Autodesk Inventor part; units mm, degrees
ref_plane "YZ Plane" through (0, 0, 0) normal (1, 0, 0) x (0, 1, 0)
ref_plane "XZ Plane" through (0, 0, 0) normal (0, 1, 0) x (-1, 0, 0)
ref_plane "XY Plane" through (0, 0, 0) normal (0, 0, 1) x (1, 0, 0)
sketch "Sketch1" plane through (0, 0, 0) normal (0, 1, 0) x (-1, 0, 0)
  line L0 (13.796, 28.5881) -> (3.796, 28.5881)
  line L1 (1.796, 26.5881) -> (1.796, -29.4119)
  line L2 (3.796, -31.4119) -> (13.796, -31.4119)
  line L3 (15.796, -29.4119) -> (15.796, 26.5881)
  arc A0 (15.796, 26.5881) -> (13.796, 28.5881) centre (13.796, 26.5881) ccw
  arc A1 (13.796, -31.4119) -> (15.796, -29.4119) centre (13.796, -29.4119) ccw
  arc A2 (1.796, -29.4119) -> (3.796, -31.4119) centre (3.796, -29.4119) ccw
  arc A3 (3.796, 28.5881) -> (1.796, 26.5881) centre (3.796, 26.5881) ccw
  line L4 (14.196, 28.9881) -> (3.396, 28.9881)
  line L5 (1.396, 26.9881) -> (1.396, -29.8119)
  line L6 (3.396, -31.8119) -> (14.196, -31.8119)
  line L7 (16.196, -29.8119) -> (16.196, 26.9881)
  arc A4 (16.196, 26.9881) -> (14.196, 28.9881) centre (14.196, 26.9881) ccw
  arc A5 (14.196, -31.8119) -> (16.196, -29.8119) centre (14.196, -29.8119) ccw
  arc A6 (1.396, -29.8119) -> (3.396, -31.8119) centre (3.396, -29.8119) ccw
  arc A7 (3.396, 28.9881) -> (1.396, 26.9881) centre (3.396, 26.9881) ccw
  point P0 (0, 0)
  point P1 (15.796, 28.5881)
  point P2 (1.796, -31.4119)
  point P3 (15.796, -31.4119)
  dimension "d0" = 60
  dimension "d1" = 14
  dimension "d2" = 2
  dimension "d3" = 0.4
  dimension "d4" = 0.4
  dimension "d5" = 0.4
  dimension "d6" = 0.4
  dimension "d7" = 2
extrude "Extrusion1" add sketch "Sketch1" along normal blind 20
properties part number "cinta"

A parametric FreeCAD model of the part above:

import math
import FreeCAD as App
import Part
import Sketcher
from FreeCAD import Vector
Q = App.Units.Quantity

doc = App.newDocument("Part")
params = doc.addObject("Spreadsheet::Sheet", "Params")
for row, (alias, value) in enumerate([
    ("sketch1_radius", "2 mm"),
    ("sketch1_width", "10 mm"),
    ("sketch1_height", "56 mm"),
    ("pad1_length", "20 mm"),
], start=1):
    params.set(f"A{row}", alias)
    params.set(f"B{row}", "=" + value)
    params.setAlias(f"B{row}", alias)

body = doc.addObject("PartDesign::Body", "Body")

sketch1 = doc.addObject("Sketcher::SketchObject", "Sketch")
body.addObject(sketch1)
sketch1.AttachmentSupport = (doc.XZ_Plane, [""])
sketch1.MapMode = "FlatFace"
sketch1.addGeometry(Part.ArcOfCircle(Part.Circle(Vector(-14.2, 27, 0), Vector(0, 0, 1), 2), math.radians(90), math.radians(180)), False)
sketch1.addGeometry(Part.LineSegment(Vector(-14.2, 29, 0), Vector(-3.4, 29, 0)), False)
sketch1.addGeometry(Part.ArcOfCircle(Part.Circle(Vector(-3.4, 27, 0), Vector(0, 0, 1), 2), math.radians(0), math.radians(90)), False)
sketch1.addGeometry(Part.LineSegment(Vector(-1.4, 27, 0), Vector(-1.4, -29.8, 0)), False)
sketch1.addGeometry(Part.ArcOfCircle(Part.Circle(Vector(-3.4, -29.8, 0), Vector(0, 0, 1), 2), math.radians(-90), math.radians(0)), False)
sketch1.addGeometry(Part.LineSegment(Vector(-3.4, -31.8, 0), Vector(-14.2, -31.8, 0)), False)
sketch1.addGeometry(Part.ArcOfCircle(Part.Circle(Vector(-14.2, -29.8, 0), Vector(0, 0, 1), 2), math.radians(180), math.radians(270)), False)
sketch1.addGeometry(Part.LineSegment(Vector(-16.2, -29.8, 0), Vector(-16.2, 27, 0)), False)
sketch1.addGeometry(Part.LineSegment(Vector(-3.8, 28.6, 0), Vector(-13.8, 28.6, 0)), False)
sketch1.addGeometry(Part.ArcOfCircle(Part.Circle(Vector(-13.8, 26.6, 0), Vector(0, 0, 1), 2), math.radians(90), math.radians(180)), False)
sketch1.addGeometry(Part.LineSegment(Vector(-15.8, 26.6, 0), Vector(-15.8, -29.4, 0)), False)
sketch1.addGeometry(Part.ArcOfCircle(Part.Circle(Vector(-13.8, -29.4, 0), Vector(0, 0, 1), 2), math.radians(180), math.radians(270)), False)
sketch1.addGeometry(Part.LineSegment(Vector(-13.8, -31.4, 0), Vector(-3.8, -31.4, 0)), False)
sketch1.addGeometry(Part.ArcOfCircle(Part.Circle(Vector(-3.8, -29.4, 0), Vector(0, 0, 1), 2), math.radians(-90), math.radians(0)), False)
sketch1.addGeometry(Part.LineSegment(Vector(-1.8, -29.4, 0), Vector(-1.8, 26.6, 0)), False)
sketch1.addGeometry(Part.ArcOfCircle(Part.Circle(Vector(-3.8, 26.6, 0), Vector(0, 0, 1), 2), math.radians(0), math.radians(90)), False)
sketch1.addConstraint(Sketcher.Constraint("Tangent", 0, 1, 1, 1))
sketch1.addConstraint(Sketcher.Constraint("Tangent", 1, 2, 2, 2))
sketch1.addConstraint(Sketcher.Constraint("Tangent", 2, 1, 3, 1))
sketch1.addConstraint(Sketcher.Constraint("Tangent", 3, 2, 4, 2))
sketch1.addConstraint(Sketcher.Constraint("Tangent", 4, 1, 5, 1))
sketch1.addConstraint(Sketcher.Constraint("Tangent", 5, 2, 6, 2))
sketch1.addConstraint(Sketcher.Constraint("Tangent", 6, 1, 7, 1))
sketch1.addConstraint(Sketcher.Constraint("Tangent", 7, 2, 0, 2))
sketch1.addConstraint(Sketcher.Constraint("Tangent", 8, 2, 9, 1))
sketch1.addConstraint(Sketcher.Constraint("Tangent", 9, 2, 10, 1))
sketch1.addConstraint(Sketcher.Constraint("Tangent", 10, 2, 11, 1))
sketch1.addConstraint(Sketcher.Constraint("Tangent", 11, 2, 12, 1))
sketch1.addConstraint(Sketcher.Constraint("Tangent", 12, 2, 13, 1))
sketch1.addConstraint(Sketcher.Constraint("Tangent", 13, 2, 14, 1))
sketch1.addConstraint(Sketcher.Constraint("Tangent", 14, 2, 15, 1))
sketch1.addConstraint(Sketcher.Constraint("Tangent", 15, 2, 8, 1))
sketch1.addConstraint(Sketcher.Constraint("Horizontal", 1))
sketch1.addConstraint(Sketcher.Constraint("Vertical", 3))
sketch1.addConstraint(Sketcher.Constraint("Horizontal", 5))
sketch1.addConstraint(Sketcher.Constraint("Vertical", 7))
sketch1.addConstraint(Sketcher.Constraint("Horizontal", 8))
sketch1.addConstraint(Sketcher.Constraint("Vertical", 10))
sketch1.addConstraint(Sketcher.Constraint("Horizontal", 12))
sketch1.addConstraint(Sketcher.Constraint("Vertical", 14))
sketch1.addConstraint(Sketcher.Constraint("Equal", 0, 2))
sketch1.addConstraint(Sketcher.Constraint("Equal", 2, 4))
sketch1.addConstraint(Sketcher.Constraint("Equal", 4, 6))
sketch1.addConstraint(Sketcher.Constraint("Equal", 6, 9))
sketch1.addConstraint(Sketcher.Constraint("Equal", 9, 11))
sketch1.addConstraint(Sketcher.Constraint("Equal", 11, 13))
sketch1.addConstraint(Sketcher.Constraint("Equal", 13, 15))
sketch1.addConstraint(Sketcher.Constraint("Radius", 0, Q("2 mm")))
sketch1.addConstraint(Sketcher.Constraint("DistanceX", 0, 3, 9, 3, Q("0.4 mm")))
sketch1.addConstraint(Sketcher.Constraint("DistanceY", 9, 3, 0, 3, Q("0.4 mm")))
sketch1.addConstraint(Sketcher.Constraint("DistanceY", 6, 3, 11, 3, Q("0.4 mm")))
sketch1.addConstraint(Sketcher.Constraint("DistanceX", 13, 3, 4, 3, Q("0.4 mm")))
sketch1.addConstraint(Sketcher.Constraint("DistanceX", 8, 2, 8, 1, Q("10 mm")))
sketch1.addConstraint(Sketcher.Constraint("DistanceY", 10, 2, 10, 1, Q("56 mm")))
sketch1.addConstraint(Sketcher.Constraint("DistanceX", 0, 3, -1, 1, Q("14.196 mm")))
sketch1.addConstraint(Sketcher.Constraint("DistanceY", -1, 1, 0, 3, Q("26.988 mm")))
sketch1.setExpression("Constraints[31]", "Params.sketch1_radius")
sketch1.setExpression("Constraints[36]", "Params.sketch1_width")
sketch1.setExpression("Constraints[37]", "Params.sketch1_height")
pad1 = doc.addObject("PartDesign::Pad", "Pad")
body.addObject(pad1)
pad1.Profile = sketch1
pad1.setExpression("Length", "Params.pad1_length")
pad1.Reversed = True

doc.recompute()
